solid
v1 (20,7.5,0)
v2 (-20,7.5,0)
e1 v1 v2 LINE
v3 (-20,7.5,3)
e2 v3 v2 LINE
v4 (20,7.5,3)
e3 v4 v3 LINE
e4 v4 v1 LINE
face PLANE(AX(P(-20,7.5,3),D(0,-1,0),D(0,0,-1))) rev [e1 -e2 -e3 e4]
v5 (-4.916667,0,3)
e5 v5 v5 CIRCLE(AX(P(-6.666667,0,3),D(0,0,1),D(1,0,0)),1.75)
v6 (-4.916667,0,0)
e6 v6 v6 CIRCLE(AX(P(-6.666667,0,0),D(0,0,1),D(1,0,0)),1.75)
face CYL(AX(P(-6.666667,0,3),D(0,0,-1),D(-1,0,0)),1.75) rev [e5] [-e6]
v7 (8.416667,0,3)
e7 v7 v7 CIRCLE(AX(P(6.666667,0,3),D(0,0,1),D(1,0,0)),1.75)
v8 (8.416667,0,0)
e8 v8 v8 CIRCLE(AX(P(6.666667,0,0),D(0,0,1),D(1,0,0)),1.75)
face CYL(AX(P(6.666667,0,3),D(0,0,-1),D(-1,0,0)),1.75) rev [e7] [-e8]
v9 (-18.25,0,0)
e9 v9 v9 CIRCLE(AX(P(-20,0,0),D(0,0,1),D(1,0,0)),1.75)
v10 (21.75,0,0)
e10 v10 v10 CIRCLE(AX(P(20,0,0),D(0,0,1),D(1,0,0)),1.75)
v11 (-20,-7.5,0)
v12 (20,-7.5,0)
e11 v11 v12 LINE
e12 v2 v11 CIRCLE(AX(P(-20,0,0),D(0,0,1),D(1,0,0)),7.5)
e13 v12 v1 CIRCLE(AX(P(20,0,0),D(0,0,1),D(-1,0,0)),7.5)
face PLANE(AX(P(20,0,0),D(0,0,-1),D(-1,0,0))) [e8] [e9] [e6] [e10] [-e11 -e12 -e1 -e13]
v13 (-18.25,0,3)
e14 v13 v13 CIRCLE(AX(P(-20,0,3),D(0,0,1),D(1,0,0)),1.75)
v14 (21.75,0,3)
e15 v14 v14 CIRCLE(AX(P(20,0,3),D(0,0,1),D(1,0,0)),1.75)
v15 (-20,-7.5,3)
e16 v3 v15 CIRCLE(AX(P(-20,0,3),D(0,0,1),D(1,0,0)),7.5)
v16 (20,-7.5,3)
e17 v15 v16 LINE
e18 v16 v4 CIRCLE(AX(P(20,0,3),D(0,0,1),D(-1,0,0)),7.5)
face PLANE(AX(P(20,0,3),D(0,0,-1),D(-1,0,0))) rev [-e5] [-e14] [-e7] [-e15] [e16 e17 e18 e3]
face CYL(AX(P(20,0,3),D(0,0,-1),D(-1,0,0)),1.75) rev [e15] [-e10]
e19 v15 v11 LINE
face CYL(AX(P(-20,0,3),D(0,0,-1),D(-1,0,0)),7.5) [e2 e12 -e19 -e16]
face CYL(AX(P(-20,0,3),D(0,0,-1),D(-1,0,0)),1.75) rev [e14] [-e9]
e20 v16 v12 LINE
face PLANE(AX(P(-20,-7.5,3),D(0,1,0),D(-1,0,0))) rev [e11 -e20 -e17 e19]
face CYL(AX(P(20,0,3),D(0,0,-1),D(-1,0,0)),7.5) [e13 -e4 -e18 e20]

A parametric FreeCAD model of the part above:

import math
import FreeCAD as App
import Part
import Sketcher
from FreeCAD import Vector

doc = App.newDocument("Part")
body = doc.addObject("PartDesign::Body", "Body")

# Sketch on XY plane
sketch1 = body.newObject("Sketcher::SketchObject", "Sketch")
sketch1.AttachmentSupport = (doc.getObject("XY_Plane"), [""])
sketch1.MapMode = "FlatFace"
sketch1.addGeometry([
    Part.LineSegment(Vector(20, 7.5, 0), Vector(-20, 7.5, 0)),  # 0
    Part.ArcOfCircle(Part.Circle(Vector(-20, 0, 0), Vector(0, 0, 1), 7.5), math.radians(90), math.radians(270)),  # 1
    Part.LineSegment(Vector(-20, -7.5, 0), Vector(20, -7.5, 0)),  # 2
    Part.ArcOfCircle(Part.Circle(Vector(20, 0, 0), Vector(0, 0, 1), 7.5), math.radians(-90), math.radians(90)),  # 3
    Part.Circle(Vector(20, 0, 0), Vector(0, 0, 1), 1.8),  # 4
    Part.Circle(Vector(6.7, 0, 0), Vector(0, 0, 1), 1.8),  # 5
    Part.Circle(Vector(-6.7, 0, 0), Vector(0, 0, 1), 1.8),  # 6
    Part.Circle(Vector(-20, 0, 0), Vector(0, 0, 1), 1.8),  # 7
], False)
sketch1.addConstraint([
    Sketcher.Constraint("Tangent", 0, 2, 1, 1),
    Sketcher.Constraint("Tangent", 1, 2, 2, 1),
    Sketcher.Constraint("Tangent", 2, 2, 3, 1),
    Sketcher.Constraint("Tangent", 3, 2, 0, 1),
    Sketcher.Constraint("Horizontal", 0),
    Sketcher.Constraint("Horizontal", 2),
    Sketcher.Constraint("Coincident", 4, 3, 3, 3),
    Sketcher.Constraint("Coincident", 7, 3, 1, 3),
    Sketcher.Constraint("Equal", 4, 5),
    Sketcher.Constraint("Equal", 5, 6),
    Sketcher.Constraint("Equal", 6, 7),
    Sketcher.Constraint("Symmetric", 1, 3, 3, 3, -1, 1),
    Sketcher.Constraint("Symmetric", 5, 3, 6, 3, -1, 1),
    Sketcher.Constraint("PointOnObject", 5, 3, -1),
    Sketcher.Constraint("Diameter", 4, 3.5),
    Sketcher.Constraint("Radius", 1, 7.5),
    Sketcher.Constraint("DistanceX", 0, 2, 0, 1, 40.0),
    Sketcher.Constraint("DistanceX", -1, 1, 5, 3, 6.666667),
])
pad1 = body.newObject("PartDesign::Pad", "Pad")
pad1.Profile = sketch1
pad1.Length = 3

doc.recompute()
